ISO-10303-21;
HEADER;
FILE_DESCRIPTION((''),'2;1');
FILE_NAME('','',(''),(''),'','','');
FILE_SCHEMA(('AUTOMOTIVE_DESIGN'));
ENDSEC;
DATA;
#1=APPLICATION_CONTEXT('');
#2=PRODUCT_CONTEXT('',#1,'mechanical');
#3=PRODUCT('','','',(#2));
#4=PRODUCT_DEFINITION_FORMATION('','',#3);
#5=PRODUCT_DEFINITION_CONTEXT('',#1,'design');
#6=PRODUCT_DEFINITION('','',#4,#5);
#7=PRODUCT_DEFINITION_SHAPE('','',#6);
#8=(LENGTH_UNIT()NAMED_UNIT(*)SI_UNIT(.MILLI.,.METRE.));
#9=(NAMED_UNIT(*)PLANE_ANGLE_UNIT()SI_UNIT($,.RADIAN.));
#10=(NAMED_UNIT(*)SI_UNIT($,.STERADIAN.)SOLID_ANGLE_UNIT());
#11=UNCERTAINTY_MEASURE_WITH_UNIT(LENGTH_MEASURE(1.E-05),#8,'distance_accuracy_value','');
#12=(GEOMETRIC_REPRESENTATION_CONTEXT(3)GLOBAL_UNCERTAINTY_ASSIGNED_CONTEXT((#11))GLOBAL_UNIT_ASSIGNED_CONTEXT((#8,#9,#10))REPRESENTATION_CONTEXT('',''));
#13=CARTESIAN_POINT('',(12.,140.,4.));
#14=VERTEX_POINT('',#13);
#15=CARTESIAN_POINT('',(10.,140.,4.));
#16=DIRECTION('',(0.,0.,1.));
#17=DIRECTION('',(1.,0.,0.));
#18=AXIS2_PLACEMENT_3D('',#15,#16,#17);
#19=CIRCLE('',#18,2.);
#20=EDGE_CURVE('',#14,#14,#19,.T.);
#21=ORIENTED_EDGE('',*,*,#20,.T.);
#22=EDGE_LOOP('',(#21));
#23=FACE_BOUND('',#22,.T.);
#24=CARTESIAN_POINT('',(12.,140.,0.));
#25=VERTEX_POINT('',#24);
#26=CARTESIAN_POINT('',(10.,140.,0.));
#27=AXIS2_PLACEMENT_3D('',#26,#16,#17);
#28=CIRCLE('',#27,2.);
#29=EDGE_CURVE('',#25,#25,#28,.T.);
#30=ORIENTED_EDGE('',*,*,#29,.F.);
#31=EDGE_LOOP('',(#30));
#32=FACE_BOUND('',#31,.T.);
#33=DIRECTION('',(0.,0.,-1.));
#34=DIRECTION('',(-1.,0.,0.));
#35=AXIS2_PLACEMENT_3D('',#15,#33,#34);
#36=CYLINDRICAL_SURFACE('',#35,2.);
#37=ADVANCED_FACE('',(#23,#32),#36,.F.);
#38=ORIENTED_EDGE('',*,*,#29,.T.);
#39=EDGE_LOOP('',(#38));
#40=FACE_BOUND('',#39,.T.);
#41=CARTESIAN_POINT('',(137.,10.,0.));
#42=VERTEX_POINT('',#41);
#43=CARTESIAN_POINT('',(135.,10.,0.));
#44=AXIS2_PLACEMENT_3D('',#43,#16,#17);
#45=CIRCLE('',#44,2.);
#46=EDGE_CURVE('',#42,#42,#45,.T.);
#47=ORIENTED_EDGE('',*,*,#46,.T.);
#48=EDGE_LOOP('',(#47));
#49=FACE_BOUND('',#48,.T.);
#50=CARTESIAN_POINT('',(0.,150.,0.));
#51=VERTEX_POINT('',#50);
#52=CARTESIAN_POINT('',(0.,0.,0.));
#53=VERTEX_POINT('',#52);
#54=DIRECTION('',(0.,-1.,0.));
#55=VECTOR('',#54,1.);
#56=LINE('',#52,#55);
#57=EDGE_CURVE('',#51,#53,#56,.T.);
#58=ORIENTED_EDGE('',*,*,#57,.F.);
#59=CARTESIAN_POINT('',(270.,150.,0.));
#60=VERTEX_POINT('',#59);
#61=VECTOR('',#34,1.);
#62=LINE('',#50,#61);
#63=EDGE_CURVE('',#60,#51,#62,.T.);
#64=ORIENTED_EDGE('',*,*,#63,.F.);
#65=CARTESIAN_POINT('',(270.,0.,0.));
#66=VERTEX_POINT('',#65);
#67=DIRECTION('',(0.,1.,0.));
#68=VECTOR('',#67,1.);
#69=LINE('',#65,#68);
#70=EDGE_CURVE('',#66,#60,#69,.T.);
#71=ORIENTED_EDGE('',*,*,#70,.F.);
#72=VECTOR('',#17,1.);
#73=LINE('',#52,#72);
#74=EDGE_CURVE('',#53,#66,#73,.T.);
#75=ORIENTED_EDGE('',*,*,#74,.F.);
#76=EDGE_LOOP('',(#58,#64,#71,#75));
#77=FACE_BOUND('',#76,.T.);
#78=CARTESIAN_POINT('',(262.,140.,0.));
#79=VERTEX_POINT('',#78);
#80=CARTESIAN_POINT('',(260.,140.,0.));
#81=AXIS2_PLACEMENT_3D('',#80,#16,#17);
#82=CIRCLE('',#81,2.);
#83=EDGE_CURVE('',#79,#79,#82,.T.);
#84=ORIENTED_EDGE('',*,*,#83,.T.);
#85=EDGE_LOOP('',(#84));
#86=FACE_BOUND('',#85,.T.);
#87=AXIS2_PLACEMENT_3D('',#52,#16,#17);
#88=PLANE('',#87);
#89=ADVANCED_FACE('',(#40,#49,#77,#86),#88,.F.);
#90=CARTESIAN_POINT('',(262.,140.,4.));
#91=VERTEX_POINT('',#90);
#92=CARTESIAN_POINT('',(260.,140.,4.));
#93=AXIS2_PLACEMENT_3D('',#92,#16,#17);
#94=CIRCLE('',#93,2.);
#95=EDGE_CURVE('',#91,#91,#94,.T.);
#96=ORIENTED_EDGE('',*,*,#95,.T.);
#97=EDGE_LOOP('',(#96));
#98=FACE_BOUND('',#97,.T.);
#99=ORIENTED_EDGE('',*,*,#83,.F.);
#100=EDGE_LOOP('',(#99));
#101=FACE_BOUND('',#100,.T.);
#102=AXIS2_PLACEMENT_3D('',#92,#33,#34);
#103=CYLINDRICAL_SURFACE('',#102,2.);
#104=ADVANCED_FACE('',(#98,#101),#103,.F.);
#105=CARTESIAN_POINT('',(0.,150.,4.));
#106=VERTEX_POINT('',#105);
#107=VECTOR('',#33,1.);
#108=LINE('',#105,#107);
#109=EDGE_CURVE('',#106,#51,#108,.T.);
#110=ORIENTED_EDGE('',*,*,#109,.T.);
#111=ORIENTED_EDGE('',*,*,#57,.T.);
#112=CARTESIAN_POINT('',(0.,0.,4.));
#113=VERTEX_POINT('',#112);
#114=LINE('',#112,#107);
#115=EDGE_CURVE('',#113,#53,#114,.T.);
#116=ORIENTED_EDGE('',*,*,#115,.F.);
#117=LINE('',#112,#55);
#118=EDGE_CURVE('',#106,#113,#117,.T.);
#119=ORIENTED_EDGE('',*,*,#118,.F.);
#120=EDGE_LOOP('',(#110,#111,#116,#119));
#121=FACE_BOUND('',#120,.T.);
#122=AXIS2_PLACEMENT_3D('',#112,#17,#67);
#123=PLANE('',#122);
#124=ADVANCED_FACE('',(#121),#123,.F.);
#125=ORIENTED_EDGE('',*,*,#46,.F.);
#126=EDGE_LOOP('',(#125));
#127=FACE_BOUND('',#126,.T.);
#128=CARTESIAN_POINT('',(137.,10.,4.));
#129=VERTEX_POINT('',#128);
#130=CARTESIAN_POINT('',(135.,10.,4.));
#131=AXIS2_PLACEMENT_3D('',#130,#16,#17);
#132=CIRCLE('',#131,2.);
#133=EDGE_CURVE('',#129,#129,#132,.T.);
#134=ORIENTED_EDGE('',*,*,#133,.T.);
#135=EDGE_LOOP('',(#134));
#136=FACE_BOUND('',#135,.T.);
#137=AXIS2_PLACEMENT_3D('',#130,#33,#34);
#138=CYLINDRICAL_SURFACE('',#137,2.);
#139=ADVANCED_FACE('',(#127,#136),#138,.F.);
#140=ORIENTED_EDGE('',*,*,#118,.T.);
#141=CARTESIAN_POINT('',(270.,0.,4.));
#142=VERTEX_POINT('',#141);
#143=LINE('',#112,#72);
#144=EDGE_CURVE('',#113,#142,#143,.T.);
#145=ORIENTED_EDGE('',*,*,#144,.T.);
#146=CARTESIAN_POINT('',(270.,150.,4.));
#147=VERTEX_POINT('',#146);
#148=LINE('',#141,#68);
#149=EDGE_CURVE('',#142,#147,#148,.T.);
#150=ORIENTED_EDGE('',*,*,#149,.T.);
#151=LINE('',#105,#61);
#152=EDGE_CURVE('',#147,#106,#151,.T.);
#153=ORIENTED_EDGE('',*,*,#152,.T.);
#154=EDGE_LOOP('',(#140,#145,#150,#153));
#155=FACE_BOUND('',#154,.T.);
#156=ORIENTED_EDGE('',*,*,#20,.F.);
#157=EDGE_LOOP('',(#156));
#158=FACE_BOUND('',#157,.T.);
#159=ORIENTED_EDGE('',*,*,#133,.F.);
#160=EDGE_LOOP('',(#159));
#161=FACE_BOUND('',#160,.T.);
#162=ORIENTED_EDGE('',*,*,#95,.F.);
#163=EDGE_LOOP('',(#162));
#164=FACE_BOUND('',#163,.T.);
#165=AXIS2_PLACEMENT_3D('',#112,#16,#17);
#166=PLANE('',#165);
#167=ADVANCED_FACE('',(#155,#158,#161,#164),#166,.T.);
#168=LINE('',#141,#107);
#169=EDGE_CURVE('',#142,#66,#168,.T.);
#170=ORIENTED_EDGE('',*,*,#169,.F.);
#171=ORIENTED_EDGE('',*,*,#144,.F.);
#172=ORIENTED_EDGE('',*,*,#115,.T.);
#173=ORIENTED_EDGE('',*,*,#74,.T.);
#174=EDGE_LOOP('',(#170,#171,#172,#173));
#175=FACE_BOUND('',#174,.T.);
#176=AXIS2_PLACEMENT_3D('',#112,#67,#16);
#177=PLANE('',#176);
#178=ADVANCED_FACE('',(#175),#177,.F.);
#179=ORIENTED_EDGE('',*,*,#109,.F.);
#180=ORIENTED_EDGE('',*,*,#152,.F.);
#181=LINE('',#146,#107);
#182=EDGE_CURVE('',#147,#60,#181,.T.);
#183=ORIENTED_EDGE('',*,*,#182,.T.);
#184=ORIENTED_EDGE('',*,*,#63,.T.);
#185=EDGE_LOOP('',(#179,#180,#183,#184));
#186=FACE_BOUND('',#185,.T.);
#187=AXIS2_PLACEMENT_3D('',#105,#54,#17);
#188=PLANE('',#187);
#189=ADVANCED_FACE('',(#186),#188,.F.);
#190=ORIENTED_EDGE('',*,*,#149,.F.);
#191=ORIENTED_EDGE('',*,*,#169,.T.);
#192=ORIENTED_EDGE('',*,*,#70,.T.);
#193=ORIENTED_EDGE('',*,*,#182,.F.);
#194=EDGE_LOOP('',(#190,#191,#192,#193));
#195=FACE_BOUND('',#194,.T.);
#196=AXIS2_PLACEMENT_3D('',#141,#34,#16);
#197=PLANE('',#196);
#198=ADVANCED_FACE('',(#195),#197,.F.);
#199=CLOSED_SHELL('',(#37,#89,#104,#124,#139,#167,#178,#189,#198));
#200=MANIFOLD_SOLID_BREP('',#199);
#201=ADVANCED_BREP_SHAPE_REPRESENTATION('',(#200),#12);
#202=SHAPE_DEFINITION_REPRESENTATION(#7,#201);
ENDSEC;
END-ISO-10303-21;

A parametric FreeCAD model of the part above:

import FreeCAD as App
import Part
import Sketcher

V = App.Vector

doc = App.newDocument("Part")
body = doc.addObject("PartDesign::Body", "Body")

sketch1 = doc.addObject("Sketcher::SketchObject", "Sketch")
body.addObject(sketch1)
sketch1.AttachmentSupport = (doc.XY_Plane, [""])
sketch1.MapMode = "FlatFace"
sketch1.addGeometry([
    Part.LineSegment(V(0, 150, 0), V(0, 0, 0)),
    Part.LineSegment(V(0, 0, 0), V(270, 0, 0)),
    Part.LineSegment(V(270, 0, 0), V(270, 150, 0)),
    Part.LineSegment(V(270, 150, 0), V(0, 150, 0)),
    Part.Circle(V(135, 10, 0), V(0, 0, 1), 2),
    Part.Circle(V(10, 140, 0), V(0, 0, 1), 2),
    Part.Circle(V(260, 140, 0), V(0, 0, 1), 2),
], False)
sketch1.addConstraint([
    Sketcher.Constraint("Coincident", 0, 2, 1, 1),
    Sketcher.Constraint("Coincident", 1, 2, 2, 1),
    Sketcher.Constraint("Coincident", 2, 2, 3, 1),
    Sketcher.Constraint("Coincident", 3, 2, 0, 1),
    Sketcher.Constraint("Vertical", 0),
    Sketcher.Constraint("Horizontal", 1),
    Sketcher.Constraint("Vertical", 2),
    Sketcher.Constraint("Horizontal", 3),
    Sketcher.Constraint("Coincident", 0, 2, -1, 1),
    Sketcher.Constraint("Equal", 4, 5),
    Sketcher.Constraint("Equal", 5, 6),
    Sketcher.Constraint("Horizontal", 5, 3, 6, 3),
    Sketcher.Constraint("Diameter", 4, 4.0),
    Sketcher.Constraint("DistanceX", 1, 1, 1, 2, 270.0),
    Sketcher.Constraint("DistanceY", 0, 2, 0, 1, 150.0),
    Sketcher.Constraint("DistanceX", -1, 1, 4, 3, 135.0),
    Sketcher.Constraint("DistanceY", -1, 1, 4, 3, 10.0),
    Sketcher.Constraint("DistanceX", -1, 1, 5, 3, 10.0),
    Sketcher.Constraint("DistanceY", -1, 1, 5, 3, 140.0),
    Sketcher.Constraint("DistanceX", -1, 1, 6, 3, 260.0),
])
pad1 = doc.addObject("PartDesign::Pad", "Pad")
body.addObject(pad1)
pad1.Profile = sketch1
pad1.Length = 4

doc.recompute()
